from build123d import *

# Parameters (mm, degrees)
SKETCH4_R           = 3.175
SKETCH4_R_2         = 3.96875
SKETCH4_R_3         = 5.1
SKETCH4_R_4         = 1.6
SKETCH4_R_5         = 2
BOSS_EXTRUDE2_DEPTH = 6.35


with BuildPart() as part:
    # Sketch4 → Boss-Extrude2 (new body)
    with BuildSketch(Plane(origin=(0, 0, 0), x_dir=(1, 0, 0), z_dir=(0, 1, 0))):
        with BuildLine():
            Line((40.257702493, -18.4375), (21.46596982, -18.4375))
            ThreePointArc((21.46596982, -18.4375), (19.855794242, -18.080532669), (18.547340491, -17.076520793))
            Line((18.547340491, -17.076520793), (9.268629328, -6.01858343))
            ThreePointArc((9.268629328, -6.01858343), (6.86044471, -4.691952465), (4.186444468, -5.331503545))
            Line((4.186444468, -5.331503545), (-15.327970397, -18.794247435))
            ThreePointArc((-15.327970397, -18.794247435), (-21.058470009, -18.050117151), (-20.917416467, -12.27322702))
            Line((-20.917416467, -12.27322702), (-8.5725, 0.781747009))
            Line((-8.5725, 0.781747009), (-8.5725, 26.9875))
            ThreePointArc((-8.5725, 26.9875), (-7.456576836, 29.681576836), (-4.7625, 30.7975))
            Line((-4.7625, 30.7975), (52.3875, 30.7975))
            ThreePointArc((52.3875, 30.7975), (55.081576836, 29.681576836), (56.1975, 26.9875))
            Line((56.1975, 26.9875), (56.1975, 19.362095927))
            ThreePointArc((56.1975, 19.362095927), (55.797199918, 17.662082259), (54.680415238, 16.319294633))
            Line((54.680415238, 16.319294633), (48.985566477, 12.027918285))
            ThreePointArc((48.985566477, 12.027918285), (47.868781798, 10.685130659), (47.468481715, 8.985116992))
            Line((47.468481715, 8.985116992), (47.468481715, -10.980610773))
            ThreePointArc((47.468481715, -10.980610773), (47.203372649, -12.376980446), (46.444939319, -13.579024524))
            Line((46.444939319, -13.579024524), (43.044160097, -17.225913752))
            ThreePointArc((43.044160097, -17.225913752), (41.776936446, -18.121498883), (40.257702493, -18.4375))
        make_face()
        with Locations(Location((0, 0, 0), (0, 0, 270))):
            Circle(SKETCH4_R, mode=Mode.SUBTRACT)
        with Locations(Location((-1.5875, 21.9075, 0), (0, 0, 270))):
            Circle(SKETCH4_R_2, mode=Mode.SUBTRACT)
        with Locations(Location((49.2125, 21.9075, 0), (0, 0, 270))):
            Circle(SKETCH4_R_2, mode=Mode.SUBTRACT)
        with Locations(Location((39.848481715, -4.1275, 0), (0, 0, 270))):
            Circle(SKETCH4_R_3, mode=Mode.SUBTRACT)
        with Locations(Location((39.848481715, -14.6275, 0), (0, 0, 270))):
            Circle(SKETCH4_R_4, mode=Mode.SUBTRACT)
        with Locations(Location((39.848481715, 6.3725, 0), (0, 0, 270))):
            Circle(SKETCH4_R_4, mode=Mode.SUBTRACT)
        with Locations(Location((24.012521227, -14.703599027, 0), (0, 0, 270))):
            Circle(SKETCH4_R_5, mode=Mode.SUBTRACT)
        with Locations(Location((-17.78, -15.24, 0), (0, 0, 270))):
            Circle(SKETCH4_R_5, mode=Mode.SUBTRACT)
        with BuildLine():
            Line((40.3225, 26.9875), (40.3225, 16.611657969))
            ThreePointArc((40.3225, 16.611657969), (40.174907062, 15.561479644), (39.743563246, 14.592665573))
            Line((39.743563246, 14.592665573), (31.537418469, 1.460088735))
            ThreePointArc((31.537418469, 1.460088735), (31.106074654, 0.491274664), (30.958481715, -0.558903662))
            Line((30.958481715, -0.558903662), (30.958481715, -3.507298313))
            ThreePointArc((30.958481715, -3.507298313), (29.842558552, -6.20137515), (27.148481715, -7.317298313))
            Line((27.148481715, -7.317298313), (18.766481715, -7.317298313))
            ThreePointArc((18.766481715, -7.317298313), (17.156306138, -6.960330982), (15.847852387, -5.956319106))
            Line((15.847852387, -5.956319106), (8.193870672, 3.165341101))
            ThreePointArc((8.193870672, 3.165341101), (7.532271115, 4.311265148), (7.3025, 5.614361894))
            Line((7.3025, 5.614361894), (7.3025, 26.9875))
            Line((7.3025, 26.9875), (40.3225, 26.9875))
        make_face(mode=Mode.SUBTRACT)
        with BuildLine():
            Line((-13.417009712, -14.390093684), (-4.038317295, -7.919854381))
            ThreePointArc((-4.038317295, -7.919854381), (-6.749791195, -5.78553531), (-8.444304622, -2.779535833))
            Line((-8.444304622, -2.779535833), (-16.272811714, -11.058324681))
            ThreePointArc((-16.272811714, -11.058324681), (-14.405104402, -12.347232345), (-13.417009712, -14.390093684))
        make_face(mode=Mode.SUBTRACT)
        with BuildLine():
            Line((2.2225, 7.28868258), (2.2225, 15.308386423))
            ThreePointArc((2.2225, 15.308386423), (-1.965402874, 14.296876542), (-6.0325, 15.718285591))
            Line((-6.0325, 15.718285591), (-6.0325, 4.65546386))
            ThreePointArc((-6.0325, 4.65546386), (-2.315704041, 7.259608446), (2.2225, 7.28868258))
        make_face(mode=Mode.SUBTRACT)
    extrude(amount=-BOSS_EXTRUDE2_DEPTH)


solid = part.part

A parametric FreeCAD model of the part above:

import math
import FreeCAD as App
import Part
import Sketcher
from FreeCAD import Vector
Q = App.Units.Quantity

doc = App.newDocument("Part")
params = doc.addObject("Spreadsheet::Sheet", "Params")
for row, (alias, value) in enumerate([
    ("sketch1_radius", "0.3 in"),
    ("sketch1_diameter", "0.25 in"),
    ("sketch1_radius2", "0.15 in"),
    ("sketch1_radius3", "0.17 in"),
    ("sketch1_radius4", "0.35 in"),
    ("pad1_length", "0.25 in"),
], start=1):
    params.set(f"A{row}", alias)
    params.set(f"B{row}", "=" + value)
    params.setAlias(f"B{row}", alias)

body = doc.addObject("PartDesign::Body", "Body")

# Sketch on XZ plane
sketch1 = body.newObject("Sketcher::SketchObject", "Sketch")
sketch1.AttachmentSupport = (doc.getObject("XZ_Plane"), [""])
sketch1.MapMode = "FlatFace"
sketch1.addGeometry(Part.LineSegment(Vector(21.46597, 18.4375, 0), Vector(40.257702, 18.4375, 0)), False)
sketch1.addGeometry(Part.ArcOfCircle(Part.Circle(Vector(40.257702, 14.6275, 0), Vector(0, 0, 1), 3.81), math.radians(43), math.radians(90)), False)
sketch1.addGeometry(Part.LineSegment(Vector(43.04416, 17.225914, 0), Vector(46.444939, 13.579025, 0)), False)
sketch1.addGeometry(Part.ArcOfCircle(Part.Circle(Vector(43.658482, 10.980611, 0), Vector(0, 0, 1), 3.81), math.radians(0), math.radians(43)), False)
sketch1.addGeometry(Part.LineSegment(Vector(47.468482, 10.980611, 0), Vector(47.468482, -8.985117, 0)), False)
sketch1.addGeometry(Part.ArcOfCircle(Part.Circle(Vector(51.278482, -8.985117, 0), Vector(0, 0, 1), 3.81), math.radians(-180), math.radians(-127)), False)
sketch1.addGeometry(Part.LineSegment(Vector(48.985566, -12.027918, 0), Vector(54.680415, -16.319295, 0)), False)
sketch1.addGeometry(Part.ArcOfCircle(Part.Circle(Vector(52.3875, -19.362096, 0), Vector(0, 0, 1), 3.81), math.radians(0), math.radians(53)), False)
sketch1.addGeometry(Part.LineSegment(Vector(56.1975, -19.362096, 0), Vector(56.1975, -26.9875, 0)), False)
sketch1.addGeometry(Part.ArcOfCircle(Part.Circle(Vector(52.3875, -26.9875, 0), Vector(0, 0, 1), 3.81), math.radians(-90), math.radians(0)), False)
sketch1.addGeometry(Part.LineSegment(Vector(52.3875, -30.7975, 0), Vector(-4.7625, -30.7975, 0)), False)
sketch1.addGeometry(Part.ArcOfCircle(Part.Circle(Vector(-4.7625, -26.9875, 0), Vector(0, 0, 1), 3.81), math.radians(-180), math.radians(-90)), False)
sketch1.addGeometry(Part.LineSegment(Vector(-8.5725, -26.9875, 0), Vector(-8.5725, -0.781747, 0)), False)
sketch1.addGeometry(Part.LineSegment(Vector(-8.5725, -0.781747, 0), Vector(-20.917416, 12.273227, 0)), False)
sketch1.addGeometry(Part.ArcOfCircle(Part.Circle(Vector(-17.78, 15.24, 0), Vector(0, 0, 1), 4.318), math.radians(55.398705), math.radians(223.398705)), False)
sketch1.addGeometry(Part.LineSegment(Vector(-15.32797, 18.794247, 0), Vector(4.186444, 5.331504, 0)), False)
sketch1.addGeometry(Part.ArcOfCircle(Part.Circle(Vector(6.35, 8.467604, 0), Vector(0, 0, 1), 3.81), math.radians(-124.601295), math.radians(-40)), False)
sketch1.addGeometry(Part.LineSegment(Vector(9.268629, 6.018583, 0), Vector(18.54734, 17.076521, 0)), False)
sketch1.addGeometry(Part.ArcOfCircle(Part.Circle(Vector(21.46597, 14.6275, 0), Vector(0, 0, 1), 3.81), math.radians(90), math.radians(140)), False)
sketch1.addGeometry(Part.Circle(Vector(39.848482, 14.6275, 0), Vector(0, 0, 1), 1.6), False)
sketch1.addGeometry(Part.Circle(Vector(24.012521, 14.703599, 0), Vector(0, 0, 1), 2), False)
sketch1.addGeometry(Part.Circle(Vector(39.848482, 4.1275, 0), Vector(0, 0, 1), 5.1), False)
sketch1.addGeometry(Part.Circle(Vector(-17.78, 15.24, 0), Vector(0, 0, 1), 2), False)
sketch1.addGeometry(Part.ArcOfCircle(Part.Circle(Vector(-17.78, 15.24, 0), Vector(0, 0, 1), 4.445), math.radians(-70.179473), math.radians(-11.023116)), False)
sketch1.addGeometry(Part.LineSegment(Vector(-16.272812, 11.058325, 0), Vector(-8.444305, 2.779536, 0)), False)
sketch1.addGeometry(Part.ArcOfCircle(Part.Circle(Vector(0, 0, 0), Vector(0, 0, 1), 8.89), math.radians(117.01694), math.radians(161.780471)), False)
sketch1.addGeometry(Part.LineSegment(Vector(-4.038317, 7.919854, 0), Vector(-13.41701, 14.390094, 0)), False)
sketch1.addGeometry(Part.Circle(Vector(0, 0, 0), Vector(0, 0, 1), 3.175), False)
sketch1.addGeometry(Part.Circle(Vector(39.848482, -6.3725, 0), Vector(0, 0, 1), 1.6), False)
sketch1.addGeometry(Part.LineSegment(Vector(40.3225, -26.9875, 0), Vector(40.3225, -16.611658, 0)), False)
sketch1.addGeometry(Part.ArcOfCircle(Part.Circle(Vector(36.5125, -16.611658, 0), Vector(0, 0, 1), 3.81), math.radians(0), math.radians(32)), False)
sketch1.addGeometry(Part.LineSegment(Vector(39.743563, -14.592666, 0), Vector(31.537418, -1.460089, 0)), False)
sketch1.addGeometry(Part.ArcOfCircle(Part.Circle(Vector(34.768482, 0.558904, 0), Vector(0, 0, 1), 3.81), math.radians(-180), math.radians(-148)), False)
sketch1.addGeometry(Part.LineSegment(Vector(30.958482, 0.558904, 0), Vector(30.958482, 3.507298, 0)), False)
sketch1.addGeometry(Part.ArcOfCircle(Part.Circle(Vector(27.148482, 3.507298, 0), Vector(0, 0, 1), 3.81), math.radians(0), math.radians(90)), False)
sketch1.addGeometry(Part.LineSegment(Vector(27.148482, 7.317298, 0), Vector(18.766482, 7.317298, 0)), False)
sketch1.addGeometry(Part.ArcOfCircle(Part.Circle(Vector(18.766482, 3.507298, 0), Vector(0, 0, 1), 3.81), math.radians(90), math.radians(140)), False)
sketch1.addGeometry(Part.LineSegment(Vector(15.847852, 5.956319, 0), Vector(8.193871, -3.165341, 0)), False)
sketch1.addGeometry(Part.ArcOfCircle(Part.Circle(Vector(11.1125, -5.614362, 0), Vector(0, 0, 1), 3.81), math.radians(140), math.radians(180)), False)
sketch1.addGeometry(Part.LineSegment(Vector(7.3025, -5.614362, 0), Vector(7.3025, -26.9875, 0)), False)
sketch1.addGeometry(Part.LineSegment(Vector(7.3025, -26.9875, 0), Vector(40.3225, -26.9875, 0)), False)
sketch1.addGeometry(Part.Circle(Vector(49.2125, -21.9075, 0), Vector(0, 0, 1), 3.96875), False)
sketch1.addGeometry(Part.ArcOfCircle(Part.Circle(Vector(0, 0, 0), Vector(0, 0, 1), 7.62), math.radians(-142.341538), math.radians(-73.042237)), False)
sketch1.addGeometry(Part.LineSegment(Vector(-6.0325, -4.655464, 0), Vector(-6.0325, -15.718286, 0)), False)
sketch1.addGeometry(Part.ArcOfCircle(Part.Circle(Vector(-1.5875, -21.9075, 0), Vector(0, 0, 1), 7.62), math.radians(60), math.radians(125.685335)), False)
sketch1.addGeometry(Part.LineSegment(Vector(2.2225, -15.308386, 0), Vector(2.2225, -7.288683, 0)), False)
sketch1.addGeometry(Part.Circle(Vector(-1.5875, -21.9075, 0), Vector(0, 0, 1), 3.96875), False)
sketch1.addConstraint(Sketcher.Constraint("Tangent", 0, 2, 1, 2))
sketch1.addConstraint(Sketcher.Constraint("Tangent", 1, 1, 2, 1))
sketch1.addConstraint(Sketcher.Constraint("Tangent", 2, 2, 3, 2))
sketch1.addConstraint(Sketcher.Constraint("Tangent", 3, 1, 4, 1))
sketch1.addConstraint(Sketcher.Constraint("Tangent", 4, 2, 5, 1))
sketch1.addConstraint(Sketcher.Constraint("Tangent", 5, 2, 6, 1))
sketch1.addConstraint(Sketcher.Constraint("Tangent", 6, 2, 7, 2))
sketch1.addConstraint(Sketcher.Constraint("Tangent", 7, 1, 8, 1))
sketch1.addConstraint(Sketcher.Constraint("Tangent", 8, 2, 9, 2))
sketch1.addConstraint(Sketcher.Constraint("Tangent", 9, 1, 10, 1))
sketch1.addConstraint(Sketcher.Constraint("Tangent", 10, 2, 11, 2))
sketch1.addConstraint(Sketcher.Constraint("Tangent", 11, 1, 12, 1))
sketch1.addConstraint(Sketcher.Constraint("Coincident", 12, 2, 13, 1))
sketch1.addConstraint(Sketcher.Constraint("Tangent", 13, 2, 14, 2))
sketch1.addConstraint(Sketcher.Constraint("Tangent", 14, 1, 15, 1))
sketch1.addConstraint(Sketcher.Constraint("Tangent", 15, 2, 16, 1))
sketch1.addConstraint(Sketcher.Constraint("Tangent", 16, 2, 17, 1))
sketch1.addConstraint(Sketcher.Constraint("Tangent", 17, 2, 18, 2))
sketch1.addConstraint(Sketcher.Constraint("Tangent", 18, 1, 0, 1))
sketch1.addConstraint(Sketcher.Constraint("Coincident", 23, 1, 24, 1))
sketch1.addConstraint(Sketcher.Constraint("Coincident", 24, 2, 25, 2))
sketch1.addConstraint(Sketcher.Constraint("Coincident", 25, 1, 26, 1))
sketch1.addConstraint(Sketcher.Constraint("Coincident", 26, 2, 23, 2))
sketch1.addConstraint(Sketcher.Constraint("Tangent", 29, 2, 30, 1))
sketch1.addConstraint(Sketcher.Constraint("Tangent", 30, 2, 31, 1))
sketch1.addConstraint(Sketcher.Constraint("Tangent", 31, 2, 32, 2))
sketch1.addConstraint(Sketcher.Constraint("Tangent", 32, 1, 33, 1))
sketch1.addConstraint(Sketcher.Constraint("Tangent", 33, 2, 34, 1))
sketch1.addConstraint(Sketcher.Constraint("Tangent", 34, 2, 35, 1))
sketch1.addConstraint(Sketcher.Constraint("Tangent", 35, 2, 36, 1))
sketch1.addConstraint(Sketcher.Constraint("Tangent", 36, 2, 37, 1))
sketch1.addConstraint(Sketcher.Constraint("Tangent", 37, 2, 38, 1))
sketch1.addConstraint(Sketcher.Constraint("Tangent", 38, 2, 39, 1))
sketch1.addConstraint(Sketcher.Constraint("Coincident", 39, 2, 40, 1))
sketch1.addConstraint(Sketcher.Constraint("Coincident", 40, 2, 29, 1))
sketch1.addConstraint(Sketcher.Constraint("Coincident", 42, 1, 43, 1))
sketch1.addConstraint(Sketcher.Constraint("Coincident", 43, 2, 44, 2))
sketch1.addConstraint(Sketcher.Constraint("Coincident", 44, 1, 45, 1))
sketch1.addConstraint(Sketcher.Constraint("Coincident", 45, 2, 42, 2))
sketch1.addConstraint(Sketcher.Constraint("Horizontal", 0))
sketch1.addConstraint(Sketcher.Constraint("Vertical", 4))
sketch1.addConstraint(Sketcher.Constraint("Vertical", 8))
sketch1.addConstraint(Sketcher.Constraint("Horizontal", 10))
sketch1.addConstraint(Sketcher.Constraint("Vertical", 12))
sketch1.addConstraint(Sketcher.Constraint("Vertical", 29))
sketch1.addConstraint(Sketcher.Constraint("Vertical", 33))
sketch1.addConstraint(Sketcher.Constraint("Horizontal", 35))
sketch1.addConstraint(Sketcher.Constraint("Vertical", 39))
sketch1.addConstraint(Sketcher.Constraint("Horizontal", 40))
sketch1.addConstraint(Sketcher.Constraint("Vertical", 43))
sketch1.addConstraint(Sketcher.Constraint("Vertical", 45))
sketch1.addConstraint(Sketcher.Constraint("Coincident", 25, 3, -1, 1))
sketch1.addConstraint(Sketcher.Constraint("Coincident", 27, 3, -1, 1))
sketch1.addConstraint(Sketcher.Constraint("Coincident", 42, 3, -1, 1))
sketch1.addConstraint(Sketcher.Constraint("Coincident", 22, 3, 14, 3))
sketch1.addConstraint(Sketcher.Constraint("Coincident", 23, 3, 14, 3))
sketch1.addConstraint(Sketcher.Constraint("Coincident", 46, 3, 44, 3))
sketch1.addConstraint(Sketcher.Constraint("Equal", 1, 3))
sketch1.addConstraint(Sketcher.Constraint("Equal", 3, 5))
sketch1.addConstraint(Sketcher.Constraint("Equal", 5, 7))
sketch1.addConstraint(Sketcher.Constraint("Equal", 7, 9))
sketch1.addConstraint(Sketcher.Constraint("Equal", 9, 11))
sketch1.addConstraint(Sketcher.Constraint("Equal", 11, 16))
sketch1.addConstraint(Sketcher.Constraint("Equal", 16, 18))
sketch1.addConstraint(Sketcher.Constraint("Equal", 20, 22))
sketch1.addConstraint(Sketcher.Constraint("Equal", 19, 28))
sketch1.addConstraint(Sketcher.Constraint("Equal", 18, 30))
sketch1.addConstraint(Sketcher.Constraint("Equal", 30, 32))
sketch1.addConstraint(Sketcher.Constraint("Equal", 32, 34))
sketch1.addConstraint(Sketcher.Constraint("Equal", 34, 36))
sketch1.addConstraint(Sketcher.Constraint("Equal", 36, 38))
sketch1.addConstraint(Sketcher.Constraint("Equal", 42, 44))
sketch1.addConstraint(Sketcher.Constraint("Equal", 41, 46))
sketch1.addConstraint(Sketcher.Constraint("Parallel", 13, 24))
sketch1.addConstraint(Sketcher.Constraint("Parallel", 15, 26))
sketch1.addConstraint(Sketcher.Constraint("Parallel", 17, 37))
sketch1.addConstraint(Sketcher.Constraint("Horizontal", 18, 3, 19, 3))
sketch1.addConstraint(Sketcher.Constraint("Horizontal", 41, 3, 44, 3))
sketch1.addConstraint(Sketcher.Constraint("Horizontal", 11, 1, 39, 2))
sketch1.addConstraint(Sketcher.Constraint("Vertical", 19, 3, 21, 3))
sketch1.addConstraint(Sketcher.Constraint("Vertical", 21, 3, 28, 3))
sketch1.addConstraint(Sketcher.Constraint("Equal", 24, 26))
sketch1.addConstraint(Sketcher.Constraint("Radius", 42, Q("0.3 in")))
sketch1.addConstraint(Sketcher.Constraint("Diameter", 27, Q("0.25 in")))
sketch1.addConstraint(Sketcher.Constraint("Radius", 1, Q("0.15 in")))
sketch1.addConstraint(Sketcher.Constraint("Radius", 14, Q("0.17 in")))
sketch1.addConstraint(Sketcher.Constraint("Radius", 25, Q("0.35 in")))
sketch1.addConstraint(Sketcher.Constraint("Diameter", 41, Q("0.3125 in")))
sketch1.addConstraint(Sketcher.Constraint("DistanceX", 40, 1, 40, 2, Q("1.3 in")))
sketch1.addConstraint(Sketcher.Constraint("Angle", 2, Q("-47 deg")))
sketch1.addConstraint(Sketcher.Constraint("Angle", 6, Q("-37 deg")))
sketch1.addConstraint(Sketcher.Constraint("Angle", 17, Q("50 deg")))
sketch1.addConstraint(Sketcher.Constraint("Angle", 31, Q("122 deg")))
sketch1.addConstraint(Sketcher.Constraint("Radius", 23, Q("0.175 in")))
sketch1.addConstraint(Sketcher.Constraint("DistanceX", 10, 2, 10, 1, Q("2.25 in")))
sketch1.addConstraint(Sketcher.Constraint("DistanceX", 35, 2, 35, 1, Q("0.33 in")))
sketch1.addConstraint(Sketcher.Constraint("DistanceX", 14, 3, -1, 1, Q("0.7 in")))
sketch1.addConstraint(Sketcher.Constraint("DistanceY", -1, 1, 14, 3, Q("0.6 in")))
sketch1.addConstraint(Sketcher.Constraint("Diameter", 19, 3.2))
sketch1.addConstraint(Sketcher.Constraint("Diameter", 20, 4.0))
sketch1.addConstraint(Sketcher.Constraint("Diameter", 21, 10.2))
sketch1.addConstraint(Sketcher.Constraint("DistanceX", -1, 1, 16, 3, Q("0.25 in")))
sketch1.addConstraint(Sketcher.Constraint("DistanceX", -1, 1, 7, 3, Q("2.0625 in")))
sketch1.addConstraint(Sketcher.Constraint("DistanceY", 9, 3, -1, 1, Q("1.0625 in")))
sketch1.addConstraint(Sketcher.Constraint("DistanceX", -1, 1, 30, 3, Q("1.4375 in")))
sketch1.addConstraint(Sketcher.Constraint("DistanceX", -1, 1, 41, 3, Q("1.9375 in")))
sketch1.addConstraint(Sketcher.Constraint("DistanceX", 44, 3, -1, 1, Q("0.0625 in")))
sketch1.addConstraint(Sketcher.Constraint("DistanceY", -1, 1, 21, 3, Q("0.1625 in")))
sketch1.addConstraint(Sketcher.Constraint("DistanceY", 41, 3, -1, 1, Q("0.8625 in")))
sketch1.addConstraint(Sketcher.Constraint("DistanceX", 42, 1, -1, 1, Q("0.2375 in")))
sketch1.addConstraint(Sketcher.Constraint("DistanceX", -1, 1, 44, 1, Q("0.0875 in")))
sketch1.addConstraint(Sketcher.Constraint("DistanceY", 39, 2, 39, 1, 21.373138))
sketch1.addConstraint(Sketcher.Constraint("DistanceY", -1, 1, 1, 3, 14.6275))
sketch1.addConstraint(Sketcher.Constraint("DistanceY", -1, 1, 20, 3, 14.703599))
sketch1.addConstraint(Sketcher.Constraint("DistanceY", 28, 3, -1, 1, 6.3725))
sketch1.addConstraint(Sketcher.Constraint("DistanceY", -1, 1, 34, 3, 3.507298))
sketch1.addConstraint(Sketcher.Constraint("Distance", 2, 4.986492))
sketch1.addConstraint(Sketcher.Constraint("Distance", 13, 17.967451))
sketch1.addConstraint(Sketcher.Constraint("Distance", 15, 23.70776))
sketch1.addConstraint(Sketcher.Constraint("DistanceX", 0, 1, 0, 2, 18.791733))
sketch1.addConstraint(Sketcher.Constraint("DistanceY", 4, 2, 4, 1, 19.965728))
sketch1.addConstraint(Sketcher.Constraint("DistanceY", 29, 1, 29, 2, 10.375842))
sketch1.addConstraint(Sketcher.Constraint("DistanceX", -1, 1, 19, 3, 39.848482))
sketch1.addConstraint(Sketcher.Constraint("DistanceX", -1, 1, 20, 3, 24.012521))
sketch1.addConstraint(Sketcher.Constraint("DistanceX", 23, 1, -1, 1, 16.272812))
sketch1.setExpression("Constraints[82]", "Params.sketch1_radius")
sketch1.setExpression("Constraints[83]", "Params.sketch1_diameter")
sketch1.setExpression("Constraints[84]", "Params.sketch1_radius2")
sketch1.setExpression("Constraints[85]", "Params.sketch1_radius3")
sketch1.setExpression("Constraints[86]", "Params.sketch1_radius4")
pad1 = body.newObject("PartDesign::Pad", "Pad")
pad1.Profile = sketch1
pad1.setExpression("Length", "Params.pad1_length")

doc.recompute()
